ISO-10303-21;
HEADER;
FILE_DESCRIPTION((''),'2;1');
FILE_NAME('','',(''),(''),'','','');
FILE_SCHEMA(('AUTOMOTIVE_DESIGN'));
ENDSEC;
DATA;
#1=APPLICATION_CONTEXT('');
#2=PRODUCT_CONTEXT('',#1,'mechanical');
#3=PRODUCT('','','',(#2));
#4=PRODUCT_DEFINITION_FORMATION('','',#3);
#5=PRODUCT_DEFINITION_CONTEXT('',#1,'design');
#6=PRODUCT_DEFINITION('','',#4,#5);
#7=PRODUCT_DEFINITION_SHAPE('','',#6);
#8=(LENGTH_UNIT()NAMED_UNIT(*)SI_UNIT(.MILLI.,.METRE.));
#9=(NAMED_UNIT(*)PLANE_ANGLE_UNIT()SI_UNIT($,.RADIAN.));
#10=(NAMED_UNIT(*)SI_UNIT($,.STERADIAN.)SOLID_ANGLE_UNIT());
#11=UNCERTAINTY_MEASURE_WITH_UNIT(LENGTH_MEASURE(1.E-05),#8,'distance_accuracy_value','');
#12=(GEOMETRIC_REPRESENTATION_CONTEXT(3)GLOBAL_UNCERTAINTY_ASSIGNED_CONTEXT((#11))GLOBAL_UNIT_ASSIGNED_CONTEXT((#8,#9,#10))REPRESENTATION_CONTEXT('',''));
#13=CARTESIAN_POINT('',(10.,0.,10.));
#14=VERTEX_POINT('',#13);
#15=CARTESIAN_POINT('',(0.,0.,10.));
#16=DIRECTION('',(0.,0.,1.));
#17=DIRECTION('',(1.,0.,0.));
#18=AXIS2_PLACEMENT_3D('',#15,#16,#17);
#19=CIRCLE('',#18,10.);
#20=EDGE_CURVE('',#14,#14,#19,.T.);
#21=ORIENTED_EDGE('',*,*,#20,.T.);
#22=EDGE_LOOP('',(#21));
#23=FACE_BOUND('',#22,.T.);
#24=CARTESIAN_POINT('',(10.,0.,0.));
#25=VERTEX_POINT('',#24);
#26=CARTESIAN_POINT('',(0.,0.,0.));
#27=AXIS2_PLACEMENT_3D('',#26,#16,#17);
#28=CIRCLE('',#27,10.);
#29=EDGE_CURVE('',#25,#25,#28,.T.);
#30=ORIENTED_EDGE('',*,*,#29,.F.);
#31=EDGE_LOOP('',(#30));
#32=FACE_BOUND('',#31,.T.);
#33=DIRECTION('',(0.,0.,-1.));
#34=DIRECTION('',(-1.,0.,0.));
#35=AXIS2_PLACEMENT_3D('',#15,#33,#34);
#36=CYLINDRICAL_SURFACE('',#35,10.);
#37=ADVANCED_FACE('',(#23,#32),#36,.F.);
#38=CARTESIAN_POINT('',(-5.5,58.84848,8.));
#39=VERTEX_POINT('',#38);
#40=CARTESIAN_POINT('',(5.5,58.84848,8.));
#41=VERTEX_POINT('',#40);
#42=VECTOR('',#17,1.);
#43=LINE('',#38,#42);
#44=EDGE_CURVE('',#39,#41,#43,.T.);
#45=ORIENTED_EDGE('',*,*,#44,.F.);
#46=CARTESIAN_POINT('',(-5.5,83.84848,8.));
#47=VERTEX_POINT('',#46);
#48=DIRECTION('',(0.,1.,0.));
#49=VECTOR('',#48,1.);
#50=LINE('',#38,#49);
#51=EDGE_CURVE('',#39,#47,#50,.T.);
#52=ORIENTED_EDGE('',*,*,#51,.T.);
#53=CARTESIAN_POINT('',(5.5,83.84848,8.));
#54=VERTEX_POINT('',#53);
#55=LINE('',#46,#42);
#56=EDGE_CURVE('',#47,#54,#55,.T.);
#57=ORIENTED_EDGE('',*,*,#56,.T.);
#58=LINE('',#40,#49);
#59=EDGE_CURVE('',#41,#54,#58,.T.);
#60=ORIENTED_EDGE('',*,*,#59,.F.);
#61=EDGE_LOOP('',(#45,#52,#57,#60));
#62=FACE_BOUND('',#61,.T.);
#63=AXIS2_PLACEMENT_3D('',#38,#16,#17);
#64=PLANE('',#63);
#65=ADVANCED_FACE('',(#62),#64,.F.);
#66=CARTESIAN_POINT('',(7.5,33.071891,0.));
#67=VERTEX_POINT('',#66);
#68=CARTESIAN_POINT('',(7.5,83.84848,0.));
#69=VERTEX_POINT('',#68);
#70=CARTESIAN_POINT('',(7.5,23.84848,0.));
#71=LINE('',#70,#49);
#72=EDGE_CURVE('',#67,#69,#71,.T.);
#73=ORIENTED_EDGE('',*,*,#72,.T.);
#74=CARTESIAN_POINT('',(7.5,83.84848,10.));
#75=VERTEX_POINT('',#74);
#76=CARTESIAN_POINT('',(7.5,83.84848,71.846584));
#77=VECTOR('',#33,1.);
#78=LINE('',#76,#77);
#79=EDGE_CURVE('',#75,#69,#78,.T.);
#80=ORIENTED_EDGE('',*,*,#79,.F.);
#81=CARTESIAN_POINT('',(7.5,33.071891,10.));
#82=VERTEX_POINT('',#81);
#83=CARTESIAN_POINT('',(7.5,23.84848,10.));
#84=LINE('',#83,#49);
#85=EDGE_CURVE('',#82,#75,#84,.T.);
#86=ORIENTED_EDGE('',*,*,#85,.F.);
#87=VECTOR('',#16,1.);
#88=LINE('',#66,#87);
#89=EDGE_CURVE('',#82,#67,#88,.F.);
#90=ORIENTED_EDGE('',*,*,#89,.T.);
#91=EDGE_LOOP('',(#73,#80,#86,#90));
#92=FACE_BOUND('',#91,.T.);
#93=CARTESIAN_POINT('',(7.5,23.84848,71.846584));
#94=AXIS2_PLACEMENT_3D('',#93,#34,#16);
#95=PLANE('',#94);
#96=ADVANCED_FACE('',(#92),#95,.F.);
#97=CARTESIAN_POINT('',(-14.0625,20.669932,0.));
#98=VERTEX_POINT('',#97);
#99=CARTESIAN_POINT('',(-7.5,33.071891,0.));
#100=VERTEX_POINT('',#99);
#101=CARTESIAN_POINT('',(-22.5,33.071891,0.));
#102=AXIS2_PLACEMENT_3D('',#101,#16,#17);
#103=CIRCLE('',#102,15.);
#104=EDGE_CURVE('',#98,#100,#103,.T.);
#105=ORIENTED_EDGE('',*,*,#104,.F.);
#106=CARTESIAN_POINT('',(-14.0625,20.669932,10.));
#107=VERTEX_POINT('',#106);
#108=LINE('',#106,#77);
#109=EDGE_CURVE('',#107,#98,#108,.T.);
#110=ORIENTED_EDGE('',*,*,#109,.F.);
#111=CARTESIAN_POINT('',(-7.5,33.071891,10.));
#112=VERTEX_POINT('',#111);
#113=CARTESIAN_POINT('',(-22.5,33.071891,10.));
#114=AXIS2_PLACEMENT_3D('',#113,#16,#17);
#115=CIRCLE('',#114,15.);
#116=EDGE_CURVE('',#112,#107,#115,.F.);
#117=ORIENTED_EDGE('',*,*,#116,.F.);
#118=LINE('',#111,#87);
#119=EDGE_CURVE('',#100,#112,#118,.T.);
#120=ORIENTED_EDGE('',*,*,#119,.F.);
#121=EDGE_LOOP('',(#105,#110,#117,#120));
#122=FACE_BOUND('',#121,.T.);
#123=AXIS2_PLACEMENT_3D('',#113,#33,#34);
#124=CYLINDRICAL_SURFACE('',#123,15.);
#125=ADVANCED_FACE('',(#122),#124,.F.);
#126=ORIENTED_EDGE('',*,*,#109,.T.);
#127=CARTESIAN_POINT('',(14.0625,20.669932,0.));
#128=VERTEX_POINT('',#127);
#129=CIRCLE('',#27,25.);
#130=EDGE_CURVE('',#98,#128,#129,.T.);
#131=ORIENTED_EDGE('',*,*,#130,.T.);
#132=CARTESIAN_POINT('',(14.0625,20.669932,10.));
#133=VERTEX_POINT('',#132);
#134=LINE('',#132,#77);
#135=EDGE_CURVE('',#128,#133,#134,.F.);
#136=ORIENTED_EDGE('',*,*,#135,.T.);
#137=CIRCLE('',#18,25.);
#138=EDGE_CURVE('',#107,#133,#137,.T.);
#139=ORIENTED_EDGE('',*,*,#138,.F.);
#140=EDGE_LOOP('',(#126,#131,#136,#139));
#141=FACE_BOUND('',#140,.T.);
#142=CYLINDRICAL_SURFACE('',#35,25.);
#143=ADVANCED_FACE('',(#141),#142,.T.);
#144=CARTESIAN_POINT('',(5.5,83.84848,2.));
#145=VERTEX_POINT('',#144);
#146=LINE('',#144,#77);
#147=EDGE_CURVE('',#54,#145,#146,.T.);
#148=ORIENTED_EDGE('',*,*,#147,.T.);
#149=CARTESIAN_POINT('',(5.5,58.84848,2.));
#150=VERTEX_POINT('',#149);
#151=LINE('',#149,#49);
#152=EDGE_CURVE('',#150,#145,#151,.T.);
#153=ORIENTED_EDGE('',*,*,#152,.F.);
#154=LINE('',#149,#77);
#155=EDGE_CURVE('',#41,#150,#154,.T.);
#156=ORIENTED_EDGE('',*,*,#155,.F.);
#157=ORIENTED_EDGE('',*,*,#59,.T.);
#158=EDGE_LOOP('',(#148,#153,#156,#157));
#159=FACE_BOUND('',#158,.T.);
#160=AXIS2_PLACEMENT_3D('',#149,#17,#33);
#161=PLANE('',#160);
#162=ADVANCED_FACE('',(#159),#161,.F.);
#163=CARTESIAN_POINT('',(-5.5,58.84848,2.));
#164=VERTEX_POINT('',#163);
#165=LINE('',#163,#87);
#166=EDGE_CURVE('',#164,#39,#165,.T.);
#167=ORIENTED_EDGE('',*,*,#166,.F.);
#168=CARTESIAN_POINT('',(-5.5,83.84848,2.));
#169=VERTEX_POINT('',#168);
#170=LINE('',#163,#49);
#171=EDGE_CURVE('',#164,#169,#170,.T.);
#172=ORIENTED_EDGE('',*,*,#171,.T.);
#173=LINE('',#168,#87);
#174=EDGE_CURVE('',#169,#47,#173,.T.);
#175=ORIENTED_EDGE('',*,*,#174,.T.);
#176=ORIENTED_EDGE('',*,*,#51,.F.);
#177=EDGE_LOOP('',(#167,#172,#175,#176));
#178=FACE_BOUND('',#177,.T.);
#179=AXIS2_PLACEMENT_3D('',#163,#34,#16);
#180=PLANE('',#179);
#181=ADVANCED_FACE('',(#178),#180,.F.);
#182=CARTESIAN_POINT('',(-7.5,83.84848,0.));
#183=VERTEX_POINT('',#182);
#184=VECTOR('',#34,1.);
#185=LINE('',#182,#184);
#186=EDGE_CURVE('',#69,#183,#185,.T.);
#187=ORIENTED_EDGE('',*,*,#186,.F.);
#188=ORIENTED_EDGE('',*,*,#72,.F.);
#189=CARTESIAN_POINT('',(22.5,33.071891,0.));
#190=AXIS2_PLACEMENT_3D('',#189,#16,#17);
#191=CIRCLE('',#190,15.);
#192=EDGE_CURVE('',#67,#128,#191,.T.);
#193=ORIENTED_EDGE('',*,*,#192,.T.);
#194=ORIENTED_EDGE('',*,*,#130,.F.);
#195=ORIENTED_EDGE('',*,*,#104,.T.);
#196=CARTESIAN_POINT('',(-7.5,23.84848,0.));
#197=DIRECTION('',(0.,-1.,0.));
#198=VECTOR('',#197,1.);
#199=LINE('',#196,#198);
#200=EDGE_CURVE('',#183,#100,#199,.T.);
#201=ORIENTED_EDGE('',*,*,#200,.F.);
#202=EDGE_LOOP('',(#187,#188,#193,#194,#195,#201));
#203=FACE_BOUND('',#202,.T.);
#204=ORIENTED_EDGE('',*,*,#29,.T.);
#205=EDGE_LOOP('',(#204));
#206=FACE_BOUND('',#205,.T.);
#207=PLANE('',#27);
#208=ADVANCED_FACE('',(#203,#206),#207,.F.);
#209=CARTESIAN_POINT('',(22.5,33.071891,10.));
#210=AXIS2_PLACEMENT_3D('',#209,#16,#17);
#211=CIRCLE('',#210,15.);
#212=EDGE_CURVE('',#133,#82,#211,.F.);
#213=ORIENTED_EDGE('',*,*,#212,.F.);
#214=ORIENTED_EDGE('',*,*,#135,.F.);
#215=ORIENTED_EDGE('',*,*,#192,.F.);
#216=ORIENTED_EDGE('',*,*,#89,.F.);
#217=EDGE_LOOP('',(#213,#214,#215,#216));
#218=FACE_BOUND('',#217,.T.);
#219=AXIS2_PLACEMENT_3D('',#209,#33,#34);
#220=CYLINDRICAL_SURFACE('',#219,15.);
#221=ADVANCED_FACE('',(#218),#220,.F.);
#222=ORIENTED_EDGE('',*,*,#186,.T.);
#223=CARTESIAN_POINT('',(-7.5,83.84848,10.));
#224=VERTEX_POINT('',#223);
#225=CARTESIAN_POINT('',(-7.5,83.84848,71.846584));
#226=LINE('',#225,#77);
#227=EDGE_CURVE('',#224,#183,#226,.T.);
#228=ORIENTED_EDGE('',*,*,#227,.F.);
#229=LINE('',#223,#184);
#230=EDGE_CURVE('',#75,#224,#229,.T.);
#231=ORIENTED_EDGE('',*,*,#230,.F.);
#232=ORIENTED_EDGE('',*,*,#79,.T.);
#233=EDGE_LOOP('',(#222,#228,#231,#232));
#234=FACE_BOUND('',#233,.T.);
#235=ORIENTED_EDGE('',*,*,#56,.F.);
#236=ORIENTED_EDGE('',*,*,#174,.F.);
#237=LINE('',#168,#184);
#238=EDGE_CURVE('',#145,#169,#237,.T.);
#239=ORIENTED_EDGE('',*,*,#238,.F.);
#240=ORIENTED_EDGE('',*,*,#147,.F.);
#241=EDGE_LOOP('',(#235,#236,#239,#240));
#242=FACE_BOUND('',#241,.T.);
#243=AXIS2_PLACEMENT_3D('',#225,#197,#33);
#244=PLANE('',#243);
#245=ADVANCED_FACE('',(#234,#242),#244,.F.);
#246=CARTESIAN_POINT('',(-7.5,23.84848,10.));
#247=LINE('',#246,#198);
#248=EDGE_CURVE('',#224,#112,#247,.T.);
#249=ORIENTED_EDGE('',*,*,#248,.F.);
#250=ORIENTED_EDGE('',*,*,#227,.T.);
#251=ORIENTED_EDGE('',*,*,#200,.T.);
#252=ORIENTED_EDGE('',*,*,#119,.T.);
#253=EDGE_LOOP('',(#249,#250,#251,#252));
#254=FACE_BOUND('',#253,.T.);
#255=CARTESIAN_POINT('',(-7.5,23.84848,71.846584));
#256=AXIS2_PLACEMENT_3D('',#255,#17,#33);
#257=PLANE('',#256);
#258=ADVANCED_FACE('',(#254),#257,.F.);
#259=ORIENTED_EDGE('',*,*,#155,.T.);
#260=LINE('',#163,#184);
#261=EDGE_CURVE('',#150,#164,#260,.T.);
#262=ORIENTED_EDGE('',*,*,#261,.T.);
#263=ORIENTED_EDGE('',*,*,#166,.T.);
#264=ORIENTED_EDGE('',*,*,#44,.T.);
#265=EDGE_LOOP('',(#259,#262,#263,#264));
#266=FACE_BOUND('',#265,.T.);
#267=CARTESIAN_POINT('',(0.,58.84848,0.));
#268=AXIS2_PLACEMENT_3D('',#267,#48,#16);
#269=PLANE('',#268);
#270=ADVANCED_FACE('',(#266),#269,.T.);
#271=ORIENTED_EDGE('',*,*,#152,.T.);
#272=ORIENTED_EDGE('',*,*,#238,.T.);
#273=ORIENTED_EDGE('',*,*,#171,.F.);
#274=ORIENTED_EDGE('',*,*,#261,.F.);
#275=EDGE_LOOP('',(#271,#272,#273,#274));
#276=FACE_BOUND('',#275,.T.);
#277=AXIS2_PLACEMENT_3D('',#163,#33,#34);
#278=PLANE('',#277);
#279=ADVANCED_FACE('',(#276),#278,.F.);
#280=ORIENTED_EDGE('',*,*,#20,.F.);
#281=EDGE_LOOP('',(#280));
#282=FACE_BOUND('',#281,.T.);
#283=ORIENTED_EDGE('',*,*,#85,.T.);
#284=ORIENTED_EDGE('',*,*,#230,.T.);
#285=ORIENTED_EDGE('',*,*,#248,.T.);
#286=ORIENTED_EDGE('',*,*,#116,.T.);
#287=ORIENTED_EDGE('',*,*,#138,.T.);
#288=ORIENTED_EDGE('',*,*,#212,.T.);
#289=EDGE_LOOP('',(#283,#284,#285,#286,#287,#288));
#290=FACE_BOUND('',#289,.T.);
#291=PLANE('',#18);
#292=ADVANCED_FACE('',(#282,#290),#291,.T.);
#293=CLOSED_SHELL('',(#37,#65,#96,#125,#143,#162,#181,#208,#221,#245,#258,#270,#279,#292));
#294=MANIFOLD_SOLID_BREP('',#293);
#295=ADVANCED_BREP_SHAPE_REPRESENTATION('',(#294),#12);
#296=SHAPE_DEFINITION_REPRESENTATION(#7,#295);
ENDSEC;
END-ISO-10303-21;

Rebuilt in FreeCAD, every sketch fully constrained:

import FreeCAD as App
import Part
import Sketcher

V = App.Vector
Q = App.Units.Quantity


def edges_at(feature, points):
    """Names of the edges that pass closest to the given points."""
    edges = feature.Shape.Edges
    near = lambda p: min(range(len(edges)), key=lambda i: edges[i].distToShape(Part.Vertex(*p))[0])
    return sorted({f"Edge{near(p) + 1}" for p in points})

doc = App.newDocument("Part")
body = doc.addObject("PartDesign::Body", "Body")

sketch1 = doc.addObject("Sketcher::SketchObject", "Sketch")
body.addObject(sketch1)
sketch1.AttachmentSupport = (doc.XY_Plane, [""])
sketch1.MapMode = "FlatFace"
sketch1.addGeometry(Part.Circle(V(0, 0, 0), V(0, 0, 1), 25), False)
sketch1.addGeometry(Part.Circle(V(0, 0, 0), V(0, 0, 1), 10), False)
sketch1.addConstraint(Sketcher.Constraint("Coincident", 0, 3, -1, 1))
sketch1.addConstraint(Sketcher.Constraint("Coincident", 1, 3, -1, 1))
sketch1.addConstraint(Sketcher.Constraint("Diameter", 0, Q("50 mm")))
sketch1.addConstraint(Sketcher.Constraint("Diameter", 1, Q("20 mm")))
pad1 = doc.addObject("PartDesign::Pad", "Pad")
body.addObject(pad1)
pad1.Profile = sketch1
pad1.Length = 10

sketch2 = doc.addObject("Sketcher::SketchObject", "Sketch001")
body.addObject(sketch2)
sketch2.AttachmentSupport = (doc.XY_Plane, [""])
sketch2.MapMode = "FlatFace"
sketch2.addGeometry(Part.LineSegment(V(-8, 84, 0), V(-8, 24, 0)), False)
sketch2.addGeometry(Part.LineSegment(V(-8, 24, 0), V(8, 24, 0)), False)
sketch2.addGeometry(Part.LineSegment(V(8, 24, 0), V(8, 84, 0)), False)
sketch2.addGeometry(Part.LineSegment(V(8, 84, 0), V(-8, 84, 0)), False)
sketch2.addConstraint(Sketcher.Constraint("Coincident", 0, 2, 1, 1))
sketch2.addConstraint(Sketcher.Constraint("Coincident", 1, 2, 2, 1))
sketch2.addConstraint(Sketcher.Constraint("Coincident", 2, 2, 3, 1))
sketch2.addConstraint(Sketcher.Constraint("Coincident", 3, 2, 0, 1))
sketch2.addConstraint(Sketcher.Constraint("Vertical", 0))
sketch2.addConstraint(Sketcher.Constraint("Horizontal", 1))
sketch2.addConstraint(Sketcher.Constraint("Vertical", 2))
sketch2.addConstraint(Sketcher.Constraint("Horizontal", 3))
sketch2.addConstraint(Sketcher.Constraint("DistanceX", 1, 1, 1, 2, Q("15 mm")))
sketch2.addConstraint(Sketcher.Constraint("DistanceY", 0, 2, 0, 1, Q("60 mm")))
sketch2.addConstraint(Sketcher.Constraint("DistanceX", 0, 2, -1, 1, Q("7.5 mm")))
sketch2.addConstraint(Sketcher.Constraint("DistanceY", -1, 1, 0, 2, Q("23.84848 mm")))
pad2 = doc.addObject("PartDesign::Pad", "Pad001")
body.addObject(pad2)
pad2.Profile = sketch2
pad2.Length = 10
doc.recompute()

fillet = doc.addObject("PartDesign::Fillet", "Fillet")
body.addObject(fillet)
fillet.Base = (pad2, edges_at(pad2, [(-7.5, 23.848, 5), (7.5, 23.848, 5)]))
fillet.Radius = 15

sketch3 = doc.addObject("Sketcher::SketchObject", "Sketch002")
body.addObject(sketch3)
sketch3.AttachmentSupport = (doc.XZ_Plane, [""])
sketch3.MapMode = "FlatFace"
sketch3.AttachmentOffset = App.Placement(V(0, 0, -83.84848), App.Rotation())
sketch3.addGeometry(Part.LineSegment(V(-6, 2, 0), V(-6, 8, 0)), False)
sketch3.addGeometry(Part.LineSegment(V(-6, 8, 0), V(6, 8, 0)), False)
sketch3.addGeometry(Part.LineSegment(V(6, 8, 0), V(6, 2, 0)), False)
sketch3.addGeometry(Part.LineSegment(V(6, 2, 0), V(-6, 2, 0)), False)
sketch3.addConstraint(Sketcher.Constraint("Coincident", 0, 2, 1, 1))
sketch3.addConstraint(Sketcher.Constraint("Coincident", 1, 2, 2, 1))
sketch3.addConstraint(Sketcher.Constraint("Coincident", 2, 2, 3, 1))
sketch3.addConstraint(Sketcher.Constraint("Coincident", 3, 2, 0, 1))
sketch3.addConstraint(Sketcher.Constraint("Vertical", 0))
sketch3.addConstraint(Sketcher.Constraint("Horizontal", 1))
sketch3.addConstraint(Sketcher.Constraint("Vertical", 2))
sketch3.addConstraint(Sketcher.Constraint("Horizontal", 3))
sketch3.addConstraint(Sketcher.Constraint("DistanceX", 1, 1, 1, 2, Q("11 mm")))
sketch3.addConstraint(Sketcher.Constraint("DistanceY", 0, 1, 0, 2, Q("6 mm")))
sketch3.addConstraint(Sketcher.Constraint("DistanceY", -1, 1, 0, 2, Q("8 mm")))
sketch3.addConstraint(Sketcher.Constraint("DistanceX", 0, 2, -1, 1, Q("5.5 mm")))
pocket1 = doc.addObject("PartDesign::Pocket", "Pocket")
body.addObject(pocket1)
pocket1.Profile = sketch3
pocket1.Length = 25
pocket1.Reversed = True

doc.recompute()
